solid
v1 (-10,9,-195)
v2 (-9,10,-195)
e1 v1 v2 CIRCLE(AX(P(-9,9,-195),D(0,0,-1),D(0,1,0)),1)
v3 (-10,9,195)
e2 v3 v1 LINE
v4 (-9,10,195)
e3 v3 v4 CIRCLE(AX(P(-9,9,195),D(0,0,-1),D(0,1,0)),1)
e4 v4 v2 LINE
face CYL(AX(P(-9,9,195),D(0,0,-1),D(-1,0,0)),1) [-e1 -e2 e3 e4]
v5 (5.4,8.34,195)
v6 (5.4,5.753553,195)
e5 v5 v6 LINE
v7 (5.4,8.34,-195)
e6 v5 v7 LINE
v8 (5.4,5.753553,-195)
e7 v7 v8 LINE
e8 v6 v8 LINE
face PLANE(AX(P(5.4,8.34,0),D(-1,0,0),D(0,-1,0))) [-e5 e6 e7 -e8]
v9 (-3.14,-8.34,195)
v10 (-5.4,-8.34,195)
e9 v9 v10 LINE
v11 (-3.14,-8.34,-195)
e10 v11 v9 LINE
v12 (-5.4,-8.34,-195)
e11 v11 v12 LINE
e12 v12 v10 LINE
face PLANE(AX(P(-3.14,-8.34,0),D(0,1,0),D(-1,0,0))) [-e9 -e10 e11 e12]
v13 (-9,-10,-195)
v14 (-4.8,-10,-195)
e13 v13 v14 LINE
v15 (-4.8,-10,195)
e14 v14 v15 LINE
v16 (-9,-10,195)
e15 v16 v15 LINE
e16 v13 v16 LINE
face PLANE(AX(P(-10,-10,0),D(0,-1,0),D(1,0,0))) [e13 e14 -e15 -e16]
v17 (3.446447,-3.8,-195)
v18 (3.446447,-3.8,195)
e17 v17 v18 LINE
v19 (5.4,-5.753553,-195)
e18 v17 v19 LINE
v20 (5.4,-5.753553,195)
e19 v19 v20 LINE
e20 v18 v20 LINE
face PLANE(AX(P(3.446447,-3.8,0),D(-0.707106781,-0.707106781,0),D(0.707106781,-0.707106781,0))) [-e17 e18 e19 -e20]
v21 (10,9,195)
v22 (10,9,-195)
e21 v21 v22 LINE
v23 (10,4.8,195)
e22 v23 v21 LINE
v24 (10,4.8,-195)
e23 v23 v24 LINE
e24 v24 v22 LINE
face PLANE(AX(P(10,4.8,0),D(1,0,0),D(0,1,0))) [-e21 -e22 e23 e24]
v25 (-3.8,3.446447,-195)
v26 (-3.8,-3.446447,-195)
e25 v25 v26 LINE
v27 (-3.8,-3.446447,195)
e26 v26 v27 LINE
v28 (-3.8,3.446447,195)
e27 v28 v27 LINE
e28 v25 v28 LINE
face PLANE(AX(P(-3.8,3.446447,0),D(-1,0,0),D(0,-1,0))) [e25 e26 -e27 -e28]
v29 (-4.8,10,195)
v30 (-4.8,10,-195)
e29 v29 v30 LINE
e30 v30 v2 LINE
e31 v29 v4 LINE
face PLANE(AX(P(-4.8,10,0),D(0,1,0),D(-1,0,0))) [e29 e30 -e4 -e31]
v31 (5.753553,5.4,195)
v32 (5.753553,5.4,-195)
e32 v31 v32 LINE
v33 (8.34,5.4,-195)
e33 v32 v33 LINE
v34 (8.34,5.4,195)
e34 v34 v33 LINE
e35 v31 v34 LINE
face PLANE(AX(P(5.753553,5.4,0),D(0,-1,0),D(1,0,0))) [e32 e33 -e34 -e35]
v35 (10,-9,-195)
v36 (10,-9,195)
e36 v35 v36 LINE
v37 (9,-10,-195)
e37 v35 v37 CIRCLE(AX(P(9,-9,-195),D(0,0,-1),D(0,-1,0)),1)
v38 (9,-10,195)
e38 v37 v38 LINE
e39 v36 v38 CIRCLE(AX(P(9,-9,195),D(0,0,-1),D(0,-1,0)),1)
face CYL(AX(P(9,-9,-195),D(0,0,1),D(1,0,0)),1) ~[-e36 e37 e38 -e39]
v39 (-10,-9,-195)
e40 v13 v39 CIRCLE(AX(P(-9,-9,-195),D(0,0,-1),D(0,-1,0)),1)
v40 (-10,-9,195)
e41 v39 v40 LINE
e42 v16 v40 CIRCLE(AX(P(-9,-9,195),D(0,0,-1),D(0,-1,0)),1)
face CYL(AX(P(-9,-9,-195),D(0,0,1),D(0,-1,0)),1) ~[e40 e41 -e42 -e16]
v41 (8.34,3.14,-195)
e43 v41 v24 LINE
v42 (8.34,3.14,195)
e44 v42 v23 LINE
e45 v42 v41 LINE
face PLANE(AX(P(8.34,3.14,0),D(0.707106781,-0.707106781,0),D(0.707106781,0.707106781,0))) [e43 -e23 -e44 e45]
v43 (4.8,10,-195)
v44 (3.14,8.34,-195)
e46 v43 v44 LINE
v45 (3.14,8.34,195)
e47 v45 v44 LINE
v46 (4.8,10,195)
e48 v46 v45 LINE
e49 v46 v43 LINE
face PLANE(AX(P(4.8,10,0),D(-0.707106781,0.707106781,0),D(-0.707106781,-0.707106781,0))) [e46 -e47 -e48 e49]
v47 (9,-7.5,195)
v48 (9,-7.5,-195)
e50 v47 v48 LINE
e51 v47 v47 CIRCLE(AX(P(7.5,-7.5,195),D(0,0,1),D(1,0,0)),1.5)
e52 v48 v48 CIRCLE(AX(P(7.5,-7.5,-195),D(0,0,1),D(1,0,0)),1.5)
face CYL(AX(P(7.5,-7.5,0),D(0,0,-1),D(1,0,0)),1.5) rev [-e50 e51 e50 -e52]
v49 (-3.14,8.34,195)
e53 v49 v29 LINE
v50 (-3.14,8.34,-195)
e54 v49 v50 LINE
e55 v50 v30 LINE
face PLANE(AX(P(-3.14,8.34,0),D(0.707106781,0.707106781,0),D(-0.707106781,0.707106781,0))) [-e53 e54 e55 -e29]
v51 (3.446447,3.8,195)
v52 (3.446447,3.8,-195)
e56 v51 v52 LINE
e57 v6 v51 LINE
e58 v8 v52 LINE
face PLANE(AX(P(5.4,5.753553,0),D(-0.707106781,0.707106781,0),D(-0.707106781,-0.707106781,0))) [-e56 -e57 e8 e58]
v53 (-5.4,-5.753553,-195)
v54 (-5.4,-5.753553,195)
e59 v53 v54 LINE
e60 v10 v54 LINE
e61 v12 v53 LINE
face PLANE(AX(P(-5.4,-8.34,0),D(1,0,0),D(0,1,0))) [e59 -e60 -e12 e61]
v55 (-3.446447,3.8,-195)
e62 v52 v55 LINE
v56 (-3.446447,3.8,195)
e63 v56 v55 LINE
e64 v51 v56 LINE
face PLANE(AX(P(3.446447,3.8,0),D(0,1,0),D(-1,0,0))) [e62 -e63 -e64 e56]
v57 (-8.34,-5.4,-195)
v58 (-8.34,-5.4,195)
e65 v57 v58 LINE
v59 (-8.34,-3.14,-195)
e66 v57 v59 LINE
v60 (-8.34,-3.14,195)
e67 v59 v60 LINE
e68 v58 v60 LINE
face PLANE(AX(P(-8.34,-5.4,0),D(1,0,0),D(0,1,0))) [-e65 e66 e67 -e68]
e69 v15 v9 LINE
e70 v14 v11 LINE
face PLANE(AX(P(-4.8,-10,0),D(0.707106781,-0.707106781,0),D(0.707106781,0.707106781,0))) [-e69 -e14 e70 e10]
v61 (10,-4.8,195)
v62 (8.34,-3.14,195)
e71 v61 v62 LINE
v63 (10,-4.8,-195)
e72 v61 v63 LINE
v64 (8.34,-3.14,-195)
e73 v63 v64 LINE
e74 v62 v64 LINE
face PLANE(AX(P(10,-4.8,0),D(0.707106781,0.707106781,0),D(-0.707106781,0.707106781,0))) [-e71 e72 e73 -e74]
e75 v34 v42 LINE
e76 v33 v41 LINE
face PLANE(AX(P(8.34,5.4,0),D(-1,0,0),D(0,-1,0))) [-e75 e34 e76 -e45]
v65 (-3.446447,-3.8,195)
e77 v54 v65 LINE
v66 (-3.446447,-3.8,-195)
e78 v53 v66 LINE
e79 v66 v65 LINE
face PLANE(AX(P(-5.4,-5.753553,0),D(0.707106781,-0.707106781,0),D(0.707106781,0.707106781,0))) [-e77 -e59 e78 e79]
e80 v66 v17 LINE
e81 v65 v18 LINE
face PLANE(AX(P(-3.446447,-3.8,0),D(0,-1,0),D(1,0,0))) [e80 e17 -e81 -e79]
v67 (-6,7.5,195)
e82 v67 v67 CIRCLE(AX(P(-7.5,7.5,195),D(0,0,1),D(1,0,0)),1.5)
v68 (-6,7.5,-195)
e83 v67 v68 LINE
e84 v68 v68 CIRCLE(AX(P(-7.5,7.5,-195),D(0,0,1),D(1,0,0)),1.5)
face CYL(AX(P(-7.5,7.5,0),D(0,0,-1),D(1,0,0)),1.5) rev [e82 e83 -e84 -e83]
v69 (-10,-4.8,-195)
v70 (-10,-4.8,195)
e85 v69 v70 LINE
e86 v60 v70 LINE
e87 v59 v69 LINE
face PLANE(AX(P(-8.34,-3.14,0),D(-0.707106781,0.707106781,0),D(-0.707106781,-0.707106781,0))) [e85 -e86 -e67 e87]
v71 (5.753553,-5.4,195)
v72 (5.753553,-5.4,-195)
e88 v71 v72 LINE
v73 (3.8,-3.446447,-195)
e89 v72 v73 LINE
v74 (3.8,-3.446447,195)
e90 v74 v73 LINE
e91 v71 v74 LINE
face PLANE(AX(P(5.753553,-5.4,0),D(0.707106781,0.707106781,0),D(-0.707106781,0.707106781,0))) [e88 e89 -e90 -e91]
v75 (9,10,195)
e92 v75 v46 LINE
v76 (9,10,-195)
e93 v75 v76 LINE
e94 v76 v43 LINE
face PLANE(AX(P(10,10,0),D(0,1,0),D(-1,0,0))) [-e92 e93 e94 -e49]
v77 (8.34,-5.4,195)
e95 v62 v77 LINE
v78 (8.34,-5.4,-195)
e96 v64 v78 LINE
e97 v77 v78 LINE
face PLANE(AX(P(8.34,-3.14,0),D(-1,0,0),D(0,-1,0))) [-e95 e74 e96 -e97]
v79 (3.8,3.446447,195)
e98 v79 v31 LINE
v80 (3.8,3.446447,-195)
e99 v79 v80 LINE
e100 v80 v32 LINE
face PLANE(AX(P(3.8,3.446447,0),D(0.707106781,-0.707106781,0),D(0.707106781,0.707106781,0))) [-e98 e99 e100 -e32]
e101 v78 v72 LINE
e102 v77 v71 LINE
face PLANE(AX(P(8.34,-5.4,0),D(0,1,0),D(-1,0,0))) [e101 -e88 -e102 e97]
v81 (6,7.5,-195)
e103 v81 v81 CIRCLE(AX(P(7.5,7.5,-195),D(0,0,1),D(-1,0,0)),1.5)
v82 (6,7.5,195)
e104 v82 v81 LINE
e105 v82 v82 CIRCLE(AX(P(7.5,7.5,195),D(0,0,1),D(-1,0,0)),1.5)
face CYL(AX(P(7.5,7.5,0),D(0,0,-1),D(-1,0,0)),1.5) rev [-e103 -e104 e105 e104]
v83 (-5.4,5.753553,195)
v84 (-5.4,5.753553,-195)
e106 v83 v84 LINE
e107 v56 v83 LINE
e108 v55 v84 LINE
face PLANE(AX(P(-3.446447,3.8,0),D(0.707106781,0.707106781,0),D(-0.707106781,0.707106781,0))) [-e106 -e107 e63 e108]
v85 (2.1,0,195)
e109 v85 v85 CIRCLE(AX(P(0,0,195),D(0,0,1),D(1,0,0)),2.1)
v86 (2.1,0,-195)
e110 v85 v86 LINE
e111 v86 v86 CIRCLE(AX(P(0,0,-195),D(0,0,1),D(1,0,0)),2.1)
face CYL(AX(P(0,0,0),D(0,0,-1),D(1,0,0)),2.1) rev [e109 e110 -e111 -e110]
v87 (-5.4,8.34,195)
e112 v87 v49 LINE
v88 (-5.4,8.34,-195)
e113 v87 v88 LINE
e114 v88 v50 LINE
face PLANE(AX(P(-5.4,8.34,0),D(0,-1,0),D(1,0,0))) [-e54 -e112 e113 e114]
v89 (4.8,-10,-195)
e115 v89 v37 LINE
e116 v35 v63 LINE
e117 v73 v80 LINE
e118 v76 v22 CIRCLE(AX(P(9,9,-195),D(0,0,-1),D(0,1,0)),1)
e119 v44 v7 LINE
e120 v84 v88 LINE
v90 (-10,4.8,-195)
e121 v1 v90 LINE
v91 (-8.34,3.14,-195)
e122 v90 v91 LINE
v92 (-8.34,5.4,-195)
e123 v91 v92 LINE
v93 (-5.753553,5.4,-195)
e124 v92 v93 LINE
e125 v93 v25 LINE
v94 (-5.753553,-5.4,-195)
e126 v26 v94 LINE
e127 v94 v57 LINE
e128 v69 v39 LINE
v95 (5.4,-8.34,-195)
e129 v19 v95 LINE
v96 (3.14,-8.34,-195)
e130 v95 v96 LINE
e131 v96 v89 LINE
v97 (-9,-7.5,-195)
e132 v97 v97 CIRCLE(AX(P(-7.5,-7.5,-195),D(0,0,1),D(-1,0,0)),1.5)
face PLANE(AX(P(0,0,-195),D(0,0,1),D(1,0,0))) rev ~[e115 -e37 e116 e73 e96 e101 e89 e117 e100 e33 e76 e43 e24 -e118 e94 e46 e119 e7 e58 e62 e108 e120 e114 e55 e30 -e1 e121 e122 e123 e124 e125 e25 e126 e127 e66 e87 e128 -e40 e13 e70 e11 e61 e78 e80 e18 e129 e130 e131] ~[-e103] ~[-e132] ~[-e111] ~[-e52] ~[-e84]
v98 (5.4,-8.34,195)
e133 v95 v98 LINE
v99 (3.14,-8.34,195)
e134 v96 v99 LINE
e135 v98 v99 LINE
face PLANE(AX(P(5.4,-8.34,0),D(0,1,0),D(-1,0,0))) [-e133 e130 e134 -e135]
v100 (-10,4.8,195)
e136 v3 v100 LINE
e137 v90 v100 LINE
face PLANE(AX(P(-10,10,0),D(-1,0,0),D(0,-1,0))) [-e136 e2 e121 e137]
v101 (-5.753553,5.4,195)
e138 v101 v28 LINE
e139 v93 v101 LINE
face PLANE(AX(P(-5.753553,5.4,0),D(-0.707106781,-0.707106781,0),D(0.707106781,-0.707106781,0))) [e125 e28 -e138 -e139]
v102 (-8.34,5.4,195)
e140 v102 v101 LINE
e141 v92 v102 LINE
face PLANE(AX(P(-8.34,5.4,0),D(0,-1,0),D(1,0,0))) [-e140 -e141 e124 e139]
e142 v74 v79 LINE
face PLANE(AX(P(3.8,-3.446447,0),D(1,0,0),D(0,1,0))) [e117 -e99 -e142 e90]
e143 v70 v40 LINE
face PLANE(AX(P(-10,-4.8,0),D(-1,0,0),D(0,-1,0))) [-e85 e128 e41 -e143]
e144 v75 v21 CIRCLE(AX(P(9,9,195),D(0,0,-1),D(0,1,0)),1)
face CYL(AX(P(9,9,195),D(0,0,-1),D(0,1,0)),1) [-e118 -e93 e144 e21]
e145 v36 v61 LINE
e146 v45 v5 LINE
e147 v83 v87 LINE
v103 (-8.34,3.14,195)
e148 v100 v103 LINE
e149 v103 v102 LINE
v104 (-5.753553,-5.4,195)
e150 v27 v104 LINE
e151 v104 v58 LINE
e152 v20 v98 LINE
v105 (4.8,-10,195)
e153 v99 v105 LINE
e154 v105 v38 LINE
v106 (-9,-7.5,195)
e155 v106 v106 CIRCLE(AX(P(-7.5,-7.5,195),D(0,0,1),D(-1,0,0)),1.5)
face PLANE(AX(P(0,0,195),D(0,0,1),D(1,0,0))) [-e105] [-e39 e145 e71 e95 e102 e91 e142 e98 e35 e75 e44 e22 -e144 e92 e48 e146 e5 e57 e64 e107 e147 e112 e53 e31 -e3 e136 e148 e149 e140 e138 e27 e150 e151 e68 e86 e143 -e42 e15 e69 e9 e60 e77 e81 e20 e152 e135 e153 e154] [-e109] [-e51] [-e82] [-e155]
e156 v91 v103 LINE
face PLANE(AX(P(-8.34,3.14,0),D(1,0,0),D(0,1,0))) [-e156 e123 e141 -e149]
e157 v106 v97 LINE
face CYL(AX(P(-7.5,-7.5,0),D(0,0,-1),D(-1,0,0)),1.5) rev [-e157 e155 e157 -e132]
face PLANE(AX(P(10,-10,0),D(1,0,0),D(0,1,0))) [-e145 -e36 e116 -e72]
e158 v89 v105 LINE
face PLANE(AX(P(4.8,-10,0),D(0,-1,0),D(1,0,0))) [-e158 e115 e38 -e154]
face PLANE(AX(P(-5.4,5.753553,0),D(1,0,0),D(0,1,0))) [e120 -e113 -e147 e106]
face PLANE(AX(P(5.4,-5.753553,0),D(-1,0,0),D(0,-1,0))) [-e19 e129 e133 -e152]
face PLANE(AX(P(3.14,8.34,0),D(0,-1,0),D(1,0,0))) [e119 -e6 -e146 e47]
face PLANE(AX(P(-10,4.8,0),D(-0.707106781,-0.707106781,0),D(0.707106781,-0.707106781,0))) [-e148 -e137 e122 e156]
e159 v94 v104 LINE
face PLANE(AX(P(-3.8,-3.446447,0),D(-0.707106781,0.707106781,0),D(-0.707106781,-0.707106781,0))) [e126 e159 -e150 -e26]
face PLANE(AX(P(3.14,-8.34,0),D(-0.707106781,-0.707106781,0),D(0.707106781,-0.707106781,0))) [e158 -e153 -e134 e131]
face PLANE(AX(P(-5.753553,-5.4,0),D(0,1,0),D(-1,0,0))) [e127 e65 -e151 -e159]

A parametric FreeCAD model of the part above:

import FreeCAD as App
import Part
import Sketcher
from FreeCAD import Vector


def edges_at(feature, points):
    """Names of the edges that pass closest to the given points."""
    edges = feature.Shape.Edges
    near = lambda p: min(range(len(edges)), key=lambda i: edges[i].distToShape(Part.Vertex(*p))[0])
    return sorted({f"Edge{near(p) + 1}" for p in points})


def add_polygon(sketch, points):
    """Adds a closed chain of lines whose ends are joined by coincident constraints."""
    first, n = sketch.GeometryCount, len(points)
    for a, b in zip(points, points[1:] + points[:1]):
        sketch.addGeometry(Part.LineSegment(App.Vector(*a, 0), App.Vector(*b, 0)), False)
    for i in range(n):
        sketch.addConstraint(Sketcher.Constraint("Coincident", first + i, 2, first + (i + 1) % n, 1))

doc = App.newDocument("Part")
body = doc.addObject("PartDesign::Body", "Body")

# Sketch on XY plane
sketch1 = body.newObject("Sketcher::SketchObject", "Sketch")
sketch1.AttachmentSupport = (doc.getObject("XY_Plane"), [""])
sketch1.MapMode = "FlatFace"
add_polygon(sketch1, [(-10, 10), (-10, 4.8), (-8.3, 3.1), (-8.3, 5.4), (-5.8, 5.4), (-3.8, 3.4), (-3.8, -3.4), (-5.8, -5.4), (-8.3, -5.4), (-8.3, -3.1), (-10, -4.8), (-10, -10), (-4.8, -10), (-3.1, -8.3), (-5.4, -8.3), (-5.4, -5.8), (-3.4, -3.8), (3.4, -3.8), (5.4, -5.8), (5.4, -8.3), (3.1, -8.3), (4.8, -10), (10, -10), (10, -4.8), (8.3, -3.1), (8.3, -5.4), (5.8, -5.4), (3.8, -3.4), (3.8, 3.4), (5.8, 5.4), (8.3, 5.4), (8.3, 3.1), (10, 4.8), (10, 10), (4.8, 10), (3.1, 8.3), (5.4, 8.3), (5.4, 5.8), (3.4, 3.8), (-3.4, 3.8), (-5.4, 5.8), (-5.4, 8.3), (-3.1, 8.3), (-4.8, 10)])  # lines 0-43
sketch1.addGeometry(Part.Circle(Vector(-7.5, -7.5, 0), Vector(0, 0, 1), 1.5), False)  # 44
sketch1.addGeometry(Part.Circle(Vector(7.5, -7.5, 0), Vector(0, 0, 1), 1.5), False)  # 45
sketch1.addGeometry(Part.Circle(Vector(-7.5, 7.5, 0), Vector(0, 0, 1), 1.5), False)  # 46
sketch1.addGeometry(Part.Circle(Vector(0, 0, 0), Vector(0, 0, 1), 2.1), False)  # 47
sketch1.addGeometry(Part.Circle(Vector(7.5, 7.5, 0), Vector(0, 0, 1), 1.5), False)  # 48
sketch1.addConstraint([
    Sketcher.Constraint("Vertical", 0),
    Sketcher.Constraint("Vertical", 2),
    Sketcher.Constraint("Horizontal", 3),
    Sketcher.Constraint("Vertical", 5),
    Sketcher.Constraint("Horizontal", 7),
    Sketcher.Constraint("Vertical", 8),
    Sketcher.Constraint("Vertical", 10),
    Sketcher.Constraint("Horizontal", 11),
    Sketcher.Constraint("Horizontal", 13),
    Sketcher.Constraint("Vertical", 14),
    Sketcher.Constraint("Horizontal", 16),
    Sketcher.Constraint("Vertical", 18),
    Sketcher.Constraint("Horizontal", 19),
    Sketcher.Constraint("Horizontal", 21),
    Sketcher.Constraint("Vertical", 22),
    Sketcher.Constraint("Vertical", 24),
    Sketcher.Constraint("Horizontal", 25),
    Sketcher.Constraint("Vertical", 27),
    Sketcher.Constraint("Horizontal", 29),
    Sketcher.Constraint("Vertical", 30),
    Sketcher.Constraint("Vertical", 32),
    Sketcher.Constraint("Horizontal", 33),
    Sketcher.Constraint("Horizontal", 35),
    Sketcher.Constraint("Vertical", 36),
    Sketcher.Constraint("Horizontal", 38),
    Sketcher.Constraint("Vertical", 40),
    Sketcher.Constraint("Horizontal", 41),
    Sketcher.Constraint("Horizontal", 43),
    Sketcher.Constraint("Coincident", 47, 3, -1, 1),
    Sketcher.Constraint("Equal", 44, 45),
    Sketcher.Constraint("Equal", 45, 46),
    Sketcher.Constraint("Equal", 46, 48),
    Sketcher.Constraint("Symmetric", 45, 3, 46, 3, -1, 1),
    Sketcher.Constraint("Symmetric", 44, 3, 48, 3, -1, 1),
    Sketcher.Constraint("Symmetric", 0, 2, 22, 2, -1, 1),
    Sketcher.Constraint("Symmetric", 1, 2, 23, 2, -1, 1),
    Sketcher.Constraint("Symmetric", 3, 2, 25, 2, -1, 1),
    Sketcher.Constraint("Symmetric", 4, 2, 26, 2, -1, 1),
    Sketcher.Constraint("Symmetric", 6, 2, 28, 2, -1, 1),
    Sketcher.Constraint("Symmetric", 8, 2, 30, 2, -1, 1),
    Sketcher.Constraint("Symmetric", 9, 2, 31, 2, -1, 1),
    Sketcher.Constraint("Symmetric", 11, 2, 33, 2, -1, 1),
    Sketcher.Constraint("Symmetric", 12, 2, 34, 2, -1, 1),
    Sketcher.Constraint("Symmetric", 14, 2, 36, 2, -1, 1),
    Sketcher.Constraint("Symmetric", 15, 2, 37, 2, -1, 1),
    Sketcher.Constraint("Symmetric", 17, 2, 39, 2, -1, 1),
    Sketcher.Constraint("Symmetric", 19, 2, 41, 2, -1, 1),
    Sketcher.Constraint("Symmetric", 20, 2, 42, 2, -1, 1),
    Sketcher.Constraint("Symmetric", 44, 3, 45, 3, -2),
    Sketcher.Constraint("Symmetric", 14, 2, 17, 2, -2),
    Sketcher.Constraint("Symmetric", 12, 2, 19, 2, -2),
    Sketcher.Constraint("Symmetric", 11, 2, 20, 2, -2),
    Sketcher.Constraint("Symmetric", 9, 2, 22, 2, -2),
    Sketcher.Constraint("Symmetric", 8, 2, 23, 2, -2),
    Sketcher.Constraint("Symmetric", 6, 2, 25, 2, -2),
    Sketcher.Constraint("Parallel", 1, 4),
    Sketcher.Constraint("Perpendicular", 4, 6),
    Sketcher.Constraint("Parallel", 6, 9),
    Sketcher.Constraint("Parallel", 9, 12),
    Sketcher.Constraint("Parallel", 12, 15),
    Sketcher.Constraint("Perpendicular", 15, 17),
    Sketcher.Constraint("Perpendicular", 26, 28),
    Sketcher.Constraint("Perpendicular", 37, 39),
    Sketcher.Constraint("Equal", 43, 0),
    Sketcher.Constraint("Equal", 41, 2),
    Sketcher.Constraint("Equal", 38, 5),
    Sketcher.Constraint("Equal", 29, 14),
    Sketcher.Constraint("Equal", 9, 12),
    Sketcher.Constraint("Equal", 6, 15),
    Sketcher.Constraint("Diameter", 44, 3.0),
    Sketcher.Constraint("Diameter", 47, 4.2),
    Sketcher.Constraint("DistanceX", 11, 1, 11, 2, 5.2),
    Sketcher.Constraint("DistanceX", 0, 2, -1, 1, 10.0),
    Sketcher.Constraint("DistanceX", 44, 3, 45, 3, 15.0),
    Sketcher.Constraint("DistanceY", 44, 3, 46, 3, 15.0),
    Sketcher.Constraint("DistanceX", 11, 2, 5, 2, 1.0),
    Sketcher.Constraint("DistanceX", 13, 2, 13, 1, 2.26),
    Sketcher.Constraint("DistanceY", -1, 1, 2, 2, 5.4),
    Sketcher.Constraint("Distance", 4, 2.762742),
])
pad1 = body.newObject("PartDesign::Pad", "Pad")
pad1.Profile = sketch1
pad1.Length = 390
pad1.Midplane = True
doc.recompute()

fillet = body.newObject("PartDesign::Fillet", "Fillet")
fillet.Base = (pad1, edges_at(pad1, [
    (10, 10, 0),
    (10, -10, 0),
    (-10, -10, 0),
    (-10, 10, 0),
]))
fillet.Radius = 1

doc.recompute()
